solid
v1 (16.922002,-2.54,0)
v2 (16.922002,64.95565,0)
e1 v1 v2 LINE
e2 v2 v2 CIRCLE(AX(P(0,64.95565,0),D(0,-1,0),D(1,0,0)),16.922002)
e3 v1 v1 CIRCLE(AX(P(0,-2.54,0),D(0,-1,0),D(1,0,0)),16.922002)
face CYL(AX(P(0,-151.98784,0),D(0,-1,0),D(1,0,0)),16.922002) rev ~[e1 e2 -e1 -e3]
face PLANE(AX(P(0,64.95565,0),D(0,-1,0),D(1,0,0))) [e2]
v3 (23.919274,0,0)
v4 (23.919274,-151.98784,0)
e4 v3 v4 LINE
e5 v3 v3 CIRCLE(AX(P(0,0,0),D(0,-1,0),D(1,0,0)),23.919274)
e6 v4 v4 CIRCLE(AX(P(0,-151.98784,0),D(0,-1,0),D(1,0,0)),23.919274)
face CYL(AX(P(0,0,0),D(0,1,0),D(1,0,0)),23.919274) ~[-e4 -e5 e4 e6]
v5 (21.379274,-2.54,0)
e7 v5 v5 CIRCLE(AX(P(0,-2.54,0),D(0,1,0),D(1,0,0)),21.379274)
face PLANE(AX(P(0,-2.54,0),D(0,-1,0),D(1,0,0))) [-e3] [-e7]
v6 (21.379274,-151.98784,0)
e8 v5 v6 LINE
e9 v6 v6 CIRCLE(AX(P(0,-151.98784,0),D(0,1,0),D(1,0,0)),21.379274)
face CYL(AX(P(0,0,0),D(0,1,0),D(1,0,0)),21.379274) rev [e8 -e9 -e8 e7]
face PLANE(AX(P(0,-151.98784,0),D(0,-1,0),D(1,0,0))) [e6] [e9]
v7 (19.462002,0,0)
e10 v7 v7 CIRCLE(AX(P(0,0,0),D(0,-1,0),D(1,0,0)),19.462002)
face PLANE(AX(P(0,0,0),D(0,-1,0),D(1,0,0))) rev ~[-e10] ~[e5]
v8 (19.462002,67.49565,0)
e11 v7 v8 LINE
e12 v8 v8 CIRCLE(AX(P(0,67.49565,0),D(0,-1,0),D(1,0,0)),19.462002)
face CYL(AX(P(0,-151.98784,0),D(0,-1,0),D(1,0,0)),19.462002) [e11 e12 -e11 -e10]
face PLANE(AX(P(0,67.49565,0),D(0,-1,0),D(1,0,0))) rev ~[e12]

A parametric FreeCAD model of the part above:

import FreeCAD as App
import Part
import Sketcher
Q = App.Units.Quantity


def faces_at(feature, points):
    """Names of the faces that lie closest to the given points."""
    faces = feature.Shape.Faces
    near = lambda p: min(range(len(faces)), key=lambda i: faces[i].distToShape(Part.Vertex(*p))[0])
    return sorted({f"Face{near(p) + 1}" for p in points})

doc = App.newDocument("Part")
body = doc.addObject("PartDesign::Body", "Body")

sketch1 = body.newObject("Sketcher::SketchObject", "Sketch")
sketch1.AttachmentSupport = (doc.getObject("XZ_Plane"), [""])
sketch1.MapMode = "FlatFace"
sketch1.addGeometry(Part.Circle(App.Vector(0, 0, 0), App.Vector(0, 0, 1), 24), False)
sketch1.addConstraint([
    Sketcher.Constraint("Coincident", 0, 3, -1, 1),
    Sketcher.Constraint("Diameter", 0, 47.838549),
])
pad1 = body.newObject("PartDesign::Pad", "Pad")
pad1.Profile = sketch1
pad1.Length = 151.98784

sketch2 = body.newObject("Sketcher::SketchObject", "Sketch001")
sketch2.AttachmentSupport = (doc.getObject("XZ_Plane"), [""])
sketch2.MapMode = "FlatFace"
sketch2.AttachmentOffset = App.Placement(App.Vector(0, 0, 151.98784), App.Rotation())
sketch2.addGeometry(Part.Circle(App.Vector(0, 0, 0), App.Vector(0, 0, 1), 19), False)
sketch2.addConstraint([
    Sketcher.Constraint("Coincident", 0, 3, -1, 1),
    Sketcher.Constraint("Diameter", 0, 38.924005),
])
pad2 = body.newObject("PartDesign::Pad", "Pad001")
pad2.Profile = sketch2
pad2.Length = 219.48349
pad2.Reversed = True
doc.recompute()

thickness = body.newObject("PartDesign::Thickness", "Thickness")
thickness.Base = (pad2, faces_at(pad2, [(0, -151.988, 0)]))
thickness.Value = Q("0.1 in")
thickness.Reversed = True
thickness.Join = "Intersection"

doc.recompute()
